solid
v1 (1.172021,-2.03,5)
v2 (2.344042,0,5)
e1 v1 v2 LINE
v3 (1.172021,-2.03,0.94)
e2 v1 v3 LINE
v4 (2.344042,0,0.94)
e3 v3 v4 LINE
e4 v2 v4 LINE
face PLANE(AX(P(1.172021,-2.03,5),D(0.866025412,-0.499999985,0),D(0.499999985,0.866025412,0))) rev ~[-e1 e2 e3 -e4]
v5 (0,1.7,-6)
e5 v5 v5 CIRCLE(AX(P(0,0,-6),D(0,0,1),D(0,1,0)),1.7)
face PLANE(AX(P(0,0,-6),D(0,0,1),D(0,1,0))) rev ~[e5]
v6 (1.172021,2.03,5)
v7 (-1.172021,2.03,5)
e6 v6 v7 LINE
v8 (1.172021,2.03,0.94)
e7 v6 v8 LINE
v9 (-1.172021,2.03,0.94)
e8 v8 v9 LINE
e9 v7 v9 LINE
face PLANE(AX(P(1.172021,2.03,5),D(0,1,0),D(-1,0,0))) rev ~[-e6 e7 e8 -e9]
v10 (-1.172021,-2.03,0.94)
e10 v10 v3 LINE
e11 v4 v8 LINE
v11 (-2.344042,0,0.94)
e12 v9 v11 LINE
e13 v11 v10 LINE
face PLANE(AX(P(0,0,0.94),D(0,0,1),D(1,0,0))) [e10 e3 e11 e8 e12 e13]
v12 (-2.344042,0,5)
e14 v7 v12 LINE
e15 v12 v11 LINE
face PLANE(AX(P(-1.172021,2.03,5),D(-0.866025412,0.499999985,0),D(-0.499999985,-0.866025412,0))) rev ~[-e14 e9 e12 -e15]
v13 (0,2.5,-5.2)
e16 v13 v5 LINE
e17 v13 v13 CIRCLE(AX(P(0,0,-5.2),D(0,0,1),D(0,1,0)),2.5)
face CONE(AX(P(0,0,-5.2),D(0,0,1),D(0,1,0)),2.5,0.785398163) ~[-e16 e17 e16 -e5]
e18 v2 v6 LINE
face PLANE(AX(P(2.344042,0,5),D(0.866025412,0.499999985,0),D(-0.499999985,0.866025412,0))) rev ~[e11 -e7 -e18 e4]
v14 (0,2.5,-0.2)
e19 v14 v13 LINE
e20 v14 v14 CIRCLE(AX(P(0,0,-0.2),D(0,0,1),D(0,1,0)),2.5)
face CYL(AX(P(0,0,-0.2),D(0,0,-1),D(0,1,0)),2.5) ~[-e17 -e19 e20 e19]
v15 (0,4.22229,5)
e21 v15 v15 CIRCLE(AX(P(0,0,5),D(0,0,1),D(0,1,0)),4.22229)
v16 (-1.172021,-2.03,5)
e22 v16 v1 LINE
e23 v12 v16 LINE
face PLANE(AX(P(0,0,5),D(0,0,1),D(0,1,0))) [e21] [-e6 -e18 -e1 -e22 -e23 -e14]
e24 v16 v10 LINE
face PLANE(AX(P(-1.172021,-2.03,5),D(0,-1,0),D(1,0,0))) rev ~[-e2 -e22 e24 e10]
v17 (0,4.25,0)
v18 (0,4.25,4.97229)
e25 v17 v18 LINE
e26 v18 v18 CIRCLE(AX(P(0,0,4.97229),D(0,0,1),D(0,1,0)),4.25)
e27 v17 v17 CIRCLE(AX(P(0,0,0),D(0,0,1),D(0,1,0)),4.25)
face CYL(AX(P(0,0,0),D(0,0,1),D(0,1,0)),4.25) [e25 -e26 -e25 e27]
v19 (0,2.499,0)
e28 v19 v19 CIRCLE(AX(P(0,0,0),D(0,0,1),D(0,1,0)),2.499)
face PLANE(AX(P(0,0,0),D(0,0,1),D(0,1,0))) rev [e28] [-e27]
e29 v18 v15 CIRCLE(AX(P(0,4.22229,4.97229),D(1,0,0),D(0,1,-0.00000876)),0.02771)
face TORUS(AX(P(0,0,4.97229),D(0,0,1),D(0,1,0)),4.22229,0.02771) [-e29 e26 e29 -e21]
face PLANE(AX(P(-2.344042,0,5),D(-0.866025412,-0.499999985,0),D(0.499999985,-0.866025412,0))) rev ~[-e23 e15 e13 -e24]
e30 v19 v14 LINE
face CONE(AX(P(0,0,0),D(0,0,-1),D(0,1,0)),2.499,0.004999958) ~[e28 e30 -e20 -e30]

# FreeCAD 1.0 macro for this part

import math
import FreeCAD as App
import Part
import Sketcher

V = App.Vector
Q = App.Units.Quantity

doc = App.newDocument("Part")
params = doc.addObject("Spreadsheet::Sheet", "Params")
for row, (alias, value) in enumerate([
    ("sketch1_height", "11 mm"),
    ("sketch1_height2", "5 mm"),
    ("sketch1_width", "1.7 mm"),
    ("revolution_angle", "360 deg"),
    ("pocket1_length", "4.06 mm"),
], start=1):
    params.set(f"A{row}", alias)
    params.set(f"B{row}", "=" + value)
    params.setAlias(f"B{row}", alias)

body = doc.addObject("PartDesign::Body", "Body")

# Sketch on YZ plane
sketch1 = doc.addObject("Sketcher::SketchObject", "Sketch")
body.addObject(sketch1)
sketch1.AttachmentSupport = (doc.YZ_Plane, [""])
sketch1.MapMode = "FlatFace"
sketch1.addGeometry([
    Part.LineSegment(V(2.499, 0, 0), V(4.25, 0, 0)),  # 0
    Part.LineSegment(V(4.25, 0, 0), V(4.25, 4.97229, 0)),  # 1
    Part.ArcOfCircle(Part.Circle(V(4.22229, 4.97229, 0), V(0, 0, 1), 0.02771), math.radians(-0.000502), math.radians(90.000502)),  # 2
    Part.LineSegment(V(4.22229, 5, 0), V(0, 5, 0)),  # 3
    Part.LineSegment(V(0, 5, 0), V(0, -6, 0)),  # 4
    Part.LineSegment(V(0, -6, 0), V(1.7, -6, 0)),  # 5
    Part.LineSegment(V(1.7, -6, 0), V(2.5, -5.2, 0)),  # 6
    Part.LineSegment(V(2.5, -5.2, 0), V(2.5, -0.2, 0)),  # 7
    Part.LineSegment(V(2.5, -0.2, 0), V(2.499, 0, 0)),  # 8
], False)
sketch1.addConstraint([
    Sketcher.Constraint("Coincident", 0, 2, 1, 1),
    Sketcher.Constraint("Coincident", 1, 2, 2, 1),
    Sketcher.Constraint("Coincident", 2, 2, 3, 1),
    Sketcher.Constraint("Coincident", 3, 2, 4, 1),
    Sketcher.Constraint("Coincident", 4, 2, 5, 1),
    Sketcher.Constraint("Coincident", 5, 2, 6, 1),
    Sketcher.Constraint("Coincident", 6, 2, 7, 1),
    Sketcher.Constraint("Coincident", 7, 2, 8, 1),
    Sketcher.Constraint("Coincident", 8, 2, 0, 1),
    Sketcher.Constraint("Horizontal", 0),
    Sketcher.Constraint("Vertical", 1),
    Sketcher.Constraint("Horizontal", 3),
    Sketcher.Constraint("Vertical", 4),
    Sketcher.Constraint("Horizontal", 5),
    Sketcher.Constraint("Vertical", 7),
    Sketcher.Constraint("PointOnObject", 0, 2, -1),
    Sketcher.Constraint("PointOnObject", 3, 2, -2),
    Sketcher.Constraint("Horizontal", 2, 3, 1, 2),
    Sketcher.Constraint("DistanceY", 4, 2, 4, 1, Q("11 mm")),
    Sketcher.Constraint("DistanceY", 7, 1, 7, 2, Q("5 mm")),
    Sketcher.Constraint("Angle", 6, Q("45 deg")),
    Sketcher.Constraint("DistanceX", 5, 1, 5, 2, Q("1.7 mm")),
    Sketcher.Constraint("DistanceY", -1, 1, 2, 2, Q("5 mm")),
    Sketcher.Constraint("DistanceX", -1, 1, 6, 2, Q("2.5 mm")),
    Sketcher.Constraint("DistanceX", 0, 1, 0, 2, Q("1.751 mm")),
    Sketcher.Constraint("DistanceX", -1, 1, 0, 2, Q("4.25 mm")),
    Sketcher.Constraint("Radius", 2, Q("0.02771 mm")),
    Sketcher.Constraint("DistanceX", 3, 2, 3, 1, Q("4.22229 mm")),
])
sketch1.setExpression("Constraints[18]", "Params.sketch1_height")
sketch1.setExpression("Constraints[19]", "Params.sketch1_height2")
sketch1.setExpression("Constraints[21]", "Params.sketch1_width")
revolution = doc.addObject("PartDesign::Revolution", "Revolution")
body.addObject(revolution)
revolution.Profile = sketch1
revolution.ReferenceAxis = (sketch1, ["V_Axis"])
revolution.setExpression("Angle", "Params.revolution_angle")

# Sketch on XY plane
sketch2 = doc.addObject("Sketcher::SketchObject", "Sketch001")
body.addObject(sketch2)
sketch2.AttachmentSupport = (doc.XY_Plane, [""])
sketch2.MapMode = "FlatFace"
sketch2.AttachmentOffset = App.Placement(V(0, 0, 5), App.Rotation())
sketch2.addGeometry([
    Part.LineSegment(V(2.344042, 0, 0), V(1.172021, 2.03, 0)),  # 0
    Part.LineSegment(V(1.172021, 2.03, 0), V(-1.172021, 2.03, 0)),  # 1
    Part.LineSegment(V(-1.172021, 2.03, 0), V(-2.344042, 0, 0)),  # 2
    Part.LineSegment(V(-2.344042, 0, 0), V(-1.172021, -2.03, 0)),  # 3
    Part.LineSegment(V(-1.172021, -2.03, 0), V(1.172021, -2.03, 0)),  # 4
    Part.LineSegment(V(1.172021, -2.03, 0), V(2.344042, 0, 0)),  # 5
], False)
sketch2.addConstraint([
    Sketcher.Constraint("Coincident", 0, 2, 1, 1),
    Sketcher.Constraint("Coincident", 1, 2, 2, 1),
    Sketcher.Constraint("Coincident", 2, 2, 3, 1),
    Sketcher.Constraint("Coincident", 3, 2, 4, 1),
    Sketcher.Constraint("Coincident", 4, 2, 5, 1),
    Sketcher.Constraint("Coincident", 5, 2, 0, 1),
    Sketcher.Constraint("Horizontal", 1),
    Sketcher.Constraint("Horizontal", 4),
    Sketcher.Constraint("Symmetric", 0, 2, 3, 2, -1, 1),
    Sketcher.Constraint("Symmetric", 2, 2, 5, 2, -1, 1),
    Sketcher.Constraint("PointOnObject", 2, 2, -1),
    Sketcher.Constraint("Parallel", 2, 5),
    Sketcher.Constraint("Vertical", 1, 2, 3, 2),
    Sketcher.Constraint("Angle", 0, Q("119.999999 deg")),
    Sketcher.Constraint("DistanceY", -1, 1, 0, 2, Q("2.03 mm")),
    Sketcher.Constraint("DistanceX", 1, 2, 1, 1, Q("2.344042 mm")),
])
pocket1 = doc.addObject("PartDesign::Pocket", "Pocket")
body.addObject(pocket1)
pocket1.Profile = sketch2
pocket1.setExpression("Length", "Params.pocket1_length")

doc.recompute()
